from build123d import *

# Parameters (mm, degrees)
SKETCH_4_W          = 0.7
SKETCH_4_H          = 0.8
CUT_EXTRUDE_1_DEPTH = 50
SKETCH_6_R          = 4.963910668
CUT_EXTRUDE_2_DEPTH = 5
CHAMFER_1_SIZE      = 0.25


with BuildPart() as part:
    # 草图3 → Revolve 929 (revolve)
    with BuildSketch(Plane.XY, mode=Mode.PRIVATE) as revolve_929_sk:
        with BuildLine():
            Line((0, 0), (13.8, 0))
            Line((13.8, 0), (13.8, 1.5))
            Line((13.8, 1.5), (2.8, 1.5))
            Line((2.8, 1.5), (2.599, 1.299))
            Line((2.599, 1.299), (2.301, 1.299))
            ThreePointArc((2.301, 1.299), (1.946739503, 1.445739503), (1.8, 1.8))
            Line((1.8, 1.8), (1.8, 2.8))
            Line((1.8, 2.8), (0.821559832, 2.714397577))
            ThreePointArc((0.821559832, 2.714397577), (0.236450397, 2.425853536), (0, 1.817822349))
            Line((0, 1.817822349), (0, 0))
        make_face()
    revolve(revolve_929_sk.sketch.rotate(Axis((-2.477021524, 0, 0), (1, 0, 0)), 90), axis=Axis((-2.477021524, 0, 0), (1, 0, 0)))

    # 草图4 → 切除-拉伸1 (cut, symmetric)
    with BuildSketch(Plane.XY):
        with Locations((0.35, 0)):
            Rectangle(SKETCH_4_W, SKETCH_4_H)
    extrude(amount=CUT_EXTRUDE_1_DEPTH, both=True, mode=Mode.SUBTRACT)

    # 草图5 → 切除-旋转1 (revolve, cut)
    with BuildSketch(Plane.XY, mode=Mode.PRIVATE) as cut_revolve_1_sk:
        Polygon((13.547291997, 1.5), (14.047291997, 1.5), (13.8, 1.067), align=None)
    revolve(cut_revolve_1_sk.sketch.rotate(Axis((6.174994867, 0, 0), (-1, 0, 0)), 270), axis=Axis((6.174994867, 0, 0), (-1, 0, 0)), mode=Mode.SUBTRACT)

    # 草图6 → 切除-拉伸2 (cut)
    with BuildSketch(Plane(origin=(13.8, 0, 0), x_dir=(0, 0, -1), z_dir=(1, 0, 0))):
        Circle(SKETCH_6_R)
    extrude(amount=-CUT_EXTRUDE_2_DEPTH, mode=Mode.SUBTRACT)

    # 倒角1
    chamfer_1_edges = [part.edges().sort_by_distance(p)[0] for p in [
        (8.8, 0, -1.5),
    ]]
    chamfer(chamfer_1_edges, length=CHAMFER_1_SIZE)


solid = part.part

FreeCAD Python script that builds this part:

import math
import FreeCAD as App
import Part
import Sketcher

V = App.Vector
Q = App.Units.Quantity


def edges_at(feature, points):
    """Names of the edges that pass closest to the given points."""
    edges = feature.Shape.Edges
    near = lambda p: min(range(len(edges)), key=lambda i: edges[i].distToShape(Part.Vertex(*p))[0])
    return sorted({f"Edge{near(p) + 1}" for p in points})


def add_polygon(sketch, points):
    """Adds a closed chain of lines whose ends are joined by coincident constraints."""
    first, n = sketch.GeometryCount, len(points)
    for a, b in zip(points, points[1:] + points[:1]):
        sketch.addGeometry(Part.LineSegment(App.Vector(*a, 0), App.Vector(*b, 0)), False)
    for i in range(n):
        sketch.addConstraint(Sketcher.Constraint("Coincident", first + i, 2, first + (i + 1) % n, 1))

doc = App.newDocument("Part")
body = doc.addObject("PartDesign::Body", "Body")

# Sketch on XY plane
sketch1 = doc.addObject("Sketcher::SketchObject", "Sketch")
body.addObject(sketch1)
sketch1.AttachmentSupport = (doc.XY_Plane, [""])
sketch1.MapMode = "FlatFace"
sketch1.addGeometry([
    Part.LineSegment(V(0, 0, 0), V(13.8, 0, 0)),  # 0
    Part.LineSegment(V(13.8, 0, 0), V(13.8, 1.5, 0)),  # 1
    Part.LineSegment(V(13.8, 1.5, 0), V(2.8, 1.5, 0)),  # 2
    Part.LineSegment(V(2.8, 1.5, 0), V(2.6, 1.3, 0)),  # 3
    Part.LineSegment(V(2.6, 1.3, 0), V(2.3, 1.3, 0)),  # 4
    Part.ArcOfCircle(Part.Circle(V(2.3, 1.8, 0), V(0, 0, 1), 0.5), math.radians(-180), math.radians(-90)),  # 5
    Part.LineSegment(V(1.8, 1.8, 0), V(1.8, 2.8, 0)),  # 6
    Part.LineSegment(V(1.8, 2.8, 0), V(0.82, 2.71, 0)),  # 7
    Part.ArcOfCircle(Part.Circle(V(0.9, 1.82, 0), V(0, 0, 1), 0.9), math.radians(95), math.radians(180)),  # 8
    Part.LineSegment(V(0, 1.82, 0), V(0, 0, 0)),  # 9
], False)
sketch1.addConstraint([
    Sketcher.Constraint("Coincident", 0, 2, 1, 1),
    Sketcher.Constraint("Coincident", 1, 2, 2, 1),
    Sketcher.Constraint("Coincident", 2, 2, 3, 1),
    Sketcher.Constraint("Coincident", 3, 2, 4, 1),
    Sketcher.Constraint("Tangent", 4, 2, 5, 2),
    Sketcher.Constraint("Tangent", 5, 1, 6, 1),
    Sketcher.Constraint("Coincident", 6, 2, 7, 1),
    Sketcher.Constraint("Tangent", 7, 2, 8, 1),
    Sketcher.Constraint("Tangent", 8, 2, 9, 1),
    Sketcher.Constraint("Coincident", 9, 2, 0, 1),
    Sketcher.Constraint("Horizontal", 0),
    Sketcher.Constraint("Vertical", 1),
    Sketcher.Constraint("Horizontal", 2),
    Sketcher.Constraint("Horizontal", 4),
    Sketcher.Constraint("Vertical", 6),
    Sketcher.Constraint("Vertical", 9),
    Sketcher.Constraint("Coincident", 9, 2, -1, 1),
    Sketcher.Constraint("Radius", 8, Q("0.9 mm")),
    Sketcher.Constraint("DistanceX", 2, 2, 2, 1, Q("11 mm")),
    Sketcher.Constraint("DistanceY", 6, 1, 6, 2, Q("1 mm")),
    Sketcher.Constraint("Angle", 3, Q("-135 deg")),
    Sketcher.Constraint("Angle", 7, Q("-175 deg")),
    Sketcher.Constraint("DistanceX", 0, 1, 0, 2, Q("13.8 mm")),
    Sketcher.Constraint("DistanceY", 1, 1, 1, 2, Q("1.5 mm")),
    Sketcher.Constraint("Radius", 5, Q("0.501 mm")),
    Sketcher.Constraint("DistanceX", 5, 1, 2, 2, Q("1 mm")),
    Sketcher.Constraint("DistanceY", -1, 1, 5, 3, Q("1.8 mm")),
])
revolution = doc.addObject("PartDesign::Revolution", "Revolution")
body.addObject(revolution)
revolution.Profile = sketch1
revolution.ReferenceAxis = (sketch1, ["H_Axis"])
revolution.Angle = 360

# Sketch on XY plane
sketch2 = doc.addObject("Sketcher::SketchObject", "Sketch001")
body.addObject(sketch2)
sketch2.AttachmentSupport = (doc.XY_Plane, [""])
sketch2.MapMode = "FlatFace"
add_polygon(sketch2, [(0, 0.4), (0, -0.4), (0.7, -0.4), (0.7, 0.4)])  # lines 0-3
sketch2.addConstraint([
    Sketcher.Constraint("Vertical", 0),
    Sketcher.Constraint("Horizontal", 1),
    Sketcher.Constraint("Vertical", 2),
    Sketcher.Constraint("Horizontal", 3),
    Sketcher.Constraint("Symmetric", 0, 2, 3, 2, -1, 1),
    Sketcher.Constraint("DistanceX", 1, 1, 1, 2, Q("0.7 mm")),
    Sketcher.Constraint("DistanceY", 0, 2, 0, 1, Q("0.8 mm")),
])
pocket1 = doc.addObject("PartDesign::Pocket", "Pocket")
body.addObject(pocket1)
pocket1.Profile = sketch2
pocket1.Length = 100
pocket1.Midplane = True

# Sketch on XY plane
sketch3 = doc.addObject("Sketcher::SketchObject", "Sketch002")
body.addObject(sketch3)
sketch3.AttachmentSupport = (doc.XY_Plane, [""])
sketch3.MapMode = "FlatFace"
add_polygon(sketch3, [(14.05, 1.5), (13.55, 1.5), (13.8, 1.07)])  # lines 0-2
sketch3.addConstraint([
    Sketcher.Constraint("Horizontal", 0),
    Sketcher.Constraint("DistanceX", 0, 2, 0, 1, Q("0.5 mm")),
    Sketcher.Constraint("DistanceY", -1, 1, 0, 2, Q("1.5 mm")),
    Sketcher.Constraint("DistanceX", -1, 1, 1, 2, Q("13.8 mm")),
    Sketcher.Constraint("DistanceY", -1, 1, 1, 2, Q("1.067 mm")),
    Sketcher.Constraint("Distance", 1, Q("0.501349 mm")),
])
groove = doc.addObject("PartDesign::Groove", "Groove")
body.addObject(groove)
groove.Profile = sketch3
groove.ReferenceAxis = (sketch3, ["H_Axis"])
groove.Angle = 360

# Sketch on YZ plane
sketch4 = doc.addObject("Sketcher::SketchObject", "Sketch003")
body.addObject(sketch4)
sketch4.AttachmentSupport = (doc.YZ_Plane, [""])
sketch4.MapMode = "FlatFace"
sketch4.AttachmentOffset = App.Placement(V(0, 0, 13.8), App.Rotation())
sketch4.addGeometry(Part.Circle(V(0, 0, 0), V(0, 0, 1), 5), False)
sketch4.addConstraint([
    Sketcher.Constraint("Coincident", 0, 3, -1, 1),
    Sketcher.Constraint("Diameter", 0, Q("9.927821 mm")),
])
pocket2 = doc.addObject("PartDesign::Pocket", "Pocket001")
body.addObject(pocket2)
pocket2.Profile = sketch4
pocket2.Length = 5
doc.recompute()

chamfer = doc.addObject("PartDesign::Chamfer", "Chamfer")
body.addObject(chamfer)
chamfer.Base = (pocket2, edges_at(pocket2, [(8.8, 0, -1.5)]))
chamfer.Size = 0.25

doc.recompute()
